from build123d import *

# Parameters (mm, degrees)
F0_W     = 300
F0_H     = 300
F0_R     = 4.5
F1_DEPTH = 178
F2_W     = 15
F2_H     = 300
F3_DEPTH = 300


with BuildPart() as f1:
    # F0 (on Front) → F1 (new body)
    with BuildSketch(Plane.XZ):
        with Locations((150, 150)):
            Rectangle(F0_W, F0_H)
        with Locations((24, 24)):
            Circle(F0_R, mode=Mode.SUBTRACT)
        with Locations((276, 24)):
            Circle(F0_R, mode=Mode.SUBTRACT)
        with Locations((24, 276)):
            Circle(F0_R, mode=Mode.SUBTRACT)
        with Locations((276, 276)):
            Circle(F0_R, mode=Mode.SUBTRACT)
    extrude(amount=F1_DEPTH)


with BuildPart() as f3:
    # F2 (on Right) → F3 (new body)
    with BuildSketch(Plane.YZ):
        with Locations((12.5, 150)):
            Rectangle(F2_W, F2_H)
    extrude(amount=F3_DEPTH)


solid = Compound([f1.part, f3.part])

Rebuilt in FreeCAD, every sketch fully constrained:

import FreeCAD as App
import Part
import Sketcher
Q = App.Units.Quantity


def add_polygon(sketch, points):
    """Adds a closed chain of lines whose ends are joined by coincident constraints."""
    first, n = sketch.GeometryCount, len(points)
    for a, b in zip(points, points[1:] + points[:1]):
        sketch.addGeometry(Part.LineSegment(App.Vector(*a, 0), App.Vector(*b, 0)), False)
    for i in range(n):
        sketch.addConstraint(Sketcher.Constraint("Coincident", first + i, 2, first + (i + 1) % n, 1))

doc = App.newDocument("Part")
body = doc.addObject("PartDesign::Body", "Body")

# Sketch on XZ plane
sketch1 = doc.addObject("Sketcher::SketchObject", "Sketch")
body.addObject(sketch1)
sketch1.AttachmentSupport = (doc.XZ_Plane, [""])
sketch1.MapMode = "FlatFace"
add_polygon(sketch1, [(0, 300), (0, 0), (300, 0), (300, 300)])  # lines 0-3
sketch1.addGeometry(Part.Circle(App.Vector(24, 24, 0), App.Vector(0, 0, 1), 4.5), False)  # 4
sketch1.addGeometry(Part.Circle(App.Vector(276, 24, 0), App.Vector(0, 0, 1), 4.5), False)  # 5
sketch1.addGeometry(Part.Circle(App.Vector(24, 276, 0), App.Vector(0, 0, 1), 4.5), False)  # 6
sketch1.addGeometry(Part.Circle(App.Vector(276, 276, 0), App.Vector(0, 0, 1), 4.5), False)  # 7
sketch1.addConstraint([
    Sketcher.Constraint("Vertical", 0),
    Sketcher.Constraint("Horizontal", 1),
    Sketcher.Constraint("Vertical", 2),
    Sketcher.Constraint("Horizontal", 3),
    Sketcher.Constraint("Coincident", 0, 2, -1, 1),
    Sketcher.Constraint("Equal", 4, 5),
    Sketcher.Constraint("Equal", 5, 6),
    Sketcher.Constraint("Equal", 6, 7),
    Sketcher.Constraint("Horizontal", 4, 3, 5, 3),
    Sketcher.Constraint("Horizontal", 6, 3, 7, 3),
    Sketcher.Constraint("Vertical", 4, 3, 6, 3),
    Sketcher.Constraint("Vertical", 5, 3, 7, 3),
    Sketcher.Constraint("Equal", 3, 0),
    Sketcher.Constraint("Diameter", 4, Q("9 mm")),
    Sketcher.Constraint("DistanceX", 1, 1, 1, 2, Q("300 mm")),
    Sketcher.Constraint("DistanceX", -1, 1, 4, 3, Q("24 mm")),
    Sketcher.Constraint("DistanceY", -1, 1, 4, 3, Q("24 mm")),
    Sketcher.Constraint("DistanceX", -1, 1, 5, 3, Q("276 mm")),
    Sketcher.Constraint("DistanceY", -1, 1, 6, 3, Q("276 mm")),
])
pad1 = doc.addObject("PartDesign::Pad", "Pad")
body.addObject(pad1)
pad1.Profile = sketch1
pad1.Length = 178
body2 = doc.addObject("PartDesign::Body", "Body001")

# Sketch on YZ plane
sketch2 = doc.addObject("Sketcher::SketchObject", "Sketch001")
body2.addObject(sketch2)
sketch2.AttachmentSupport = (doc.getObject("YZ_Plane001"), [""])
sketch2.MapMode = "FlatFace"
add_polygon(sketch2, [(5, 300), (5, 0), (20, 0), (20, 300)])  # lines 0-3
sketch2.addConstraint([
    Sketcher.Constraint("Vertical", 0),
    Sketcher.Constraint("Horizontal", 1),
    Sketcher.Constraint("Vertical", 2),
    Sketcher.Constraint("Horizontal", 3),
    Sketcher.Constraint("PointOnObject", 0, 2, -1),
    Sketcher.Constraint("DistanceX", 1, 1, 1, 2, Q("15 mm")),
    Sketcher.Constraint("DistanceY", 0, 2, 0, 1, Q("300 mm")),
    Sketcher.Constraint("DistanceX", -1, 1, 0, 2, Q("5 mm")),
])
pad2 = doc.addObject("PartDesign::Pad", "Pad001")
body2.addObject(pad2)
pad2.Profile = sketch2
pad2.Length = 300

doc.recompute()
